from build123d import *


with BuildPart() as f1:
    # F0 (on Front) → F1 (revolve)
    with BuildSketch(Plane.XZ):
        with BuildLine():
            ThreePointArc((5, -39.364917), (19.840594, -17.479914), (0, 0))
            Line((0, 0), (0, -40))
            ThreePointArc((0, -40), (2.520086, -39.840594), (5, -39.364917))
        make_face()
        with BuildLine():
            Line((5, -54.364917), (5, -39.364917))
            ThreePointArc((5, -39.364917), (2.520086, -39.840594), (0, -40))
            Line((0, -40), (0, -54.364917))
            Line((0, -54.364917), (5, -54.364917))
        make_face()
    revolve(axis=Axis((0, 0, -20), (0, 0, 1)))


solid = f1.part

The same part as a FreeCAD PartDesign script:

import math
import FreeCAD as App
import Part
import Sketcher

V = App.Vector
Q = App.Units.Quantity

doc = App.newDocument("Part")
body = doc.addObject("PartDesign::Body", "Body")

# Sketch on XZ plane
sketch1 = body.newObject("Sketcher::SketchObject", "Sketch")
sketch1.AttachmentSupport = (doc.getObject("XZ_Plane"), [""])
sketch1.MapMode = "FlatFace"
sketch1.addGeometry([
    Part.ArcOfCircle(Part.Circle(V(0, -20, 0), V(0, 0, 1), 20), math.radians(-75.522488), math.radians(90)),
    Part.LineSegment(V(0, 0, 0), V(0, -54.364917, 0)),
    Part.LineSegment(V(0, -54.364917, 0), V(5, -54.364917, 0)),
    Part.LineSegment(V(5, -54.364917, 0), V(5, -39.364917, 0)),
], False)
sketch1.addConstraint([
    Sketcher.Constraint("Coincident", 0, 2, 1, 1),
    Sketcher.Constraint("Coincident", 1, 2, 2, 1),
    Sketcher.Constraint("Coincident", 2, 2, 3, 1),
    Sketcher.Constraint("Coincident", 3, 2, 0, 1),
    Sketcher.Constraint("Vertical", 1),
    Sketcher.Constraint("Horizontal", 2),
    Sketcher.Constraint("Vertical", 3),
    Sketcher.Constraint("Coincident", 0, 2, -1, 1),
    Sketcher.Constraint("PointOnObject", 0, 3, -2),
    Sketcher.Constraint("Radius", 0, Q("20 mm")),
    Sketcher.Constraint("DistanceX", 2, 1, 2, 2, Q("5 mm")),
    Sketcher.Constraint("DistanceY", 3, 1, 3, 2, Q("15 mm")),
])
revolution = body.newObject("PartDesign::Revolution", "Revolution")
revolution.Profile = sketch1
revolution.ReferenceAxis = (sketch1, ["V_Axis"])
revolution.Angle = 360

doc.recompute()
